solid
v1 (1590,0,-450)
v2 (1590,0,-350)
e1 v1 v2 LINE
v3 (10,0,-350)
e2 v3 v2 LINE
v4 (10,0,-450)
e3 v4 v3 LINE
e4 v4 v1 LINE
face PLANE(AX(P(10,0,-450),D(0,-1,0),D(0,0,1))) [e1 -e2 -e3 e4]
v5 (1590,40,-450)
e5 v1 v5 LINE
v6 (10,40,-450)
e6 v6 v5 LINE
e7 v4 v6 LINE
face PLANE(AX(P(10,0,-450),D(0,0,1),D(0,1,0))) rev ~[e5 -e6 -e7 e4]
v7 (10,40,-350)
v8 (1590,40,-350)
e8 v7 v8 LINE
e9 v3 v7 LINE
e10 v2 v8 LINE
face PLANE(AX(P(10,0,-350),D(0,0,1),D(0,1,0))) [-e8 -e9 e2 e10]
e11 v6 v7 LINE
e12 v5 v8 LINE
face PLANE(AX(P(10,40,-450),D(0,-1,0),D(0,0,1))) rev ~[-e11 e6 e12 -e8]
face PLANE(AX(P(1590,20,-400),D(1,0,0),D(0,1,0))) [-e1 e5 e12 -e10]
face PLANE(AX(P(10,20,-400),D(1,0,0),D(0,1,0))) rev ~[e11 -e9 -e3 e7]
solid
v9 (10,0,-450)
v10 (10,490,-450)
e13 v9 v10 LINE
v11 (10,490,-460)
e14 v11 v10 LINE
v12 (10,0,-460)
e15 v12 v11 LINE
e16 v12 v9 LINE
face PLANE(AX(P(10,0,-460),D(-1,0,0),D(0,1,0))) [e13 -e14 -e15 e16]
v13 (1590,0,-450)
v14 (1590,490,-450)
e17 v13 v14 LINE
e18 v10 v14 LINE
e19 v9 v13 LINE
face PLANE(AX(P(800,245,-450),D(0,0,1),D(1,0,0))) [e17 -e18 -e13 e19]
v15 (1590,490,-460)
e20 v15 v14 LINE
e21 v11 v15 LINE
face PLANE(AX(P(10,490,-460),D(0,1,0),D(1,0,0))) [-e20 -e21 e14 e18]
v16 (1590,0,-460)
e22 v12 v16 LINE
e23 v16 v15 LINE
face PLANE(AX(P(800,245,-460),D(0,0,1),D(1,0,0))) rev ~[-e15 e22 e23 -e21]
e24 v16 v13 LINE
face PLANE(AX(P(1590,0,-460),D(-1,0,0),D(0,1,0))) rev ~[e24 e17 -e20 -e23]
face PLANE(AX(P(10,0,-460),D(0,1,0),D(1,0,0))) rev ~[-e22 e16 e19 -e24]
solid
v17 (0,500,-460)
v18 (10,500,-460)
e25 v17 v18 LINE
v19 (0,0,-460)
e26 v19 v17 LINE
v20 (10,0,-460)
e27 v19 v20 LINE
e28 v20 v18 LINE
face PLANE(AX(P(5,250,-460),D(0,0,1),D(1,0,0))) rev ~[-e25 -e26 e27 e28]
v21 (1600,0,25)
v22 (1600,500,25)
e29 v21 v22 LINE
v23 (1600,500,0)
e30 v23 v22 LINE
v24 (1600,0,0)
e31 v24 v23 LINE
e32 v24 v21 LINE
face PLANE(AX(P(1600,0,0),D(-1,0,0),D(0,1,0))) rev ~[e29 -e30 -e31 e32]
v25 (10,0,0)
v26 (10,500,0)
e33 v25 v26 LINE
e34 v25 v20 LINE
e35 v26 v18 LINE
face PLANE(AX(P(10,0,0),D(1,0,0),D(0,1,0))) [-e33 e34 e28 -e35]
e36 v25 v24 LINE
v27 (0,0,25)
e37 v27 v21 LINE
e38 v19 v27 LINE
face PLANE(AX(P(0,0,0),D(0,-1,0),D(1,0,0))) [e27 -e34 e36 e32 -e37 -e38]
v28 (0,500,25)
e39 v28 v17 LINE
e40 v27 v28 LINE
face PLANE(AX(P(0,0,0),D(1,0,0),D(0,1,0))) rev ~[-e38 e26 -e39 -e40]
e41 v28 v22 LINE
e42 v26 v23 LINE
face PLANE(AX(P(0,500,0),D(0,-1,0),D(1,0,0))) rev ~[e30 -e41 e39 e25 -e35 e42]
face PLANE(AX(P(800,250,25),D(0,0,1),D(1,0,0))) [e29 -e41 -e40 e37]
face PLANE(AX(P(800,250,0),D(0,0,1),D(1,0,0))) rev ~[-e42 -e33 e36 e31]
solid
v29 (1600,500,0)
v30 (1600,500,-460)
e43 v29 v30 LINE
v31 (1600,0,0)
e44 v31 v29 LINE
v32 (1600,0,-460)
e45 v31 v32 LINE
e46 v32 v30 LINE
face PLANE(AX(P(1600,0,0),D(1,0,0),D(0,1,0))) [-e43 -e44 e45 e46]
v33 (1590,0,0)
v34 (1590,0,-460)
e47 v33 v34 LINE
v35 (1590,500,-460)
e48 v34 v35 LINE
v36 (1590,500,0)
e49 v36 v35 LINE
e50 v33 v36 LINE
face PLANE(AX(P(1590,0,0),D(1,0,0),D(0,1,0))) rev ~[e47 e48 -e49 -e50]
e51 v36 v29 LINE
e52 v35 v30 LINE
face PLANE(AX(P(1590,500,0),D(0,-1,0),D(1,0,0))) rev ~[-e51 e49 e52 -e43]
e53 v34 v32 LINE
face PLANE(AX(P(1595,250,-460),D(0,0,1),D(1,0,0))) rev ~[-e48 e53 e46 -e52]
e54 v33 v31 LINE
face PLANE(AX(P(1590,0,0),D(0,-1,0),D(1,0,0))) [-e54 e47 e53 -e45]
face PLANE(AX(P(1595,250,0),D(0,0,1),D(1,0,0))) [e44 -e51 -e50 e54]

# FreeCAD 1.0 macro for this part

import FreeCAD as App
import Part
import Sketcher

doc = App.newDocument("Part")
params = doc.addObject("Spreadsheet::Sheet", "Params")
for row, (alias, value) in enumerate([
    ("sketch1_width", "1600 mm"),
    ("sketch1_height", "500 mm"),
    ("pad1_length", "25 mm"),
    ("sketch2_width", "10 mm"),
    ("sketch2_height", "500 mm"),
    ("pad2_length", "460 mm"),
    ("sketch3_width", "1580 mm"),
    ("sketch3_height", "490 mm"),
    ("pad3_length", "10 mm"),
    ("sketch4_width", "10 mm"),
    ("sketch4_height", "500 mm"),
    ("pad4_length", "460 mm"),
    ("sketch5_width", "40 mm"),
    ("sketch5_height", "100 mm"),
    ("pad5_length", "1580 mm"),
], start=1):
    params.set(f"A{row}", alias)
    params.set(f"B{row}", "=" + value)
    params.setAlias(f"B{row}", alias)

body = doc.addObject("PartDesign::Body", "Body")

# Sketch on XY plane
sketch1 = body.newObject("Sketcher::SketchObject", "Sketch")
sketch1.AttachmentSupport = (doc.getObject("XY_Plane"), [""])
sketch1.MapMode = "FlatFace"
sketch1.addGeometry(Part.LineSegment(App.Vector(0, 500, 0), App.Vector(0, 0, 0)), False)
sketch1.addGeometry(Part.LineSegment(App.Vector(0, 0, 0), App.Vector(1600, 0, 0)), False)
sketch1.addGeometry(Part.LineSegment(App.Vector(1600, 0, 0), App.Vector(1600, 500, 0)), False)
sketch1.addGeometry(Part.LineSegment(App.Vector(1600, 500, 0), App.Vector(0, 500, 0)), False)
sketch1.addConstraint(Sketcher.Constraint("Coincident", 0, 2, 1, 1))
sketch1.addConstraint(Sketcher.Constraint("Coincident", 1, 2, 2, 1))
sketch1.addConstraint(Sketcher.Constraint("Coincident", 2, 2, 3, 1))
sketch1.addConstraint(Sketcher.Constraint("Coincident", 3, 2, 0, 1))
sketch1.addConstraint(Sketcher.Constraint("Vertical", 0))
sketch1.addConstraint(Sketcher.Constraint("Horizontal", 1))
sketch1.addConstraint(Sketcher.Constraint("Vertical", 2))
sketch1.addConstraint(Sketcher.Constraint("Horizontal", 3))
sketch1.addConstraint(Sketcher.Constraint("Coincident", 0, 2, -1, 1))
sketch1.addConstraint(Sketcher.Constraint("DistanceX", 1, 1, 1, 2, 1600.0))
sketch1.addConstraint(Sketcher.Constraint("DistanceY", 0, 2, 0, 1, 500.0))
sketch1.setExpression("Constraints[9]", "Params.sketch1_width")
sketch1.setExpression("Constraints[10]", "Params.sketch1_height")
pad1 = body.newObject("PartDesign::Pad", "Pad")
pad1.Profile = sketch1
pad1.setExpression("Length", "Params.pad1_length")

# Sketch on XY plane
sketch2 = body.newObject("Sketcher::SketchObject", "Sketch001")
sketch2.AttachmentSupport = (doc.getObject("XY_Plane"), [""])
sketch2.MapMode = "FlatFace"
sketch2.addGeometry(Part.LineSegment(App.Vector(0, 500, 0), App.Vector(0, 0, 0)), False)
sketch2.addGeometry(Part.LineSegment(App.Vector(0, 0, 0), App.Vector(10, 0, 0)), False)
sketch2.addGeometry(Part.LineSegment(App.Vector(10, 0, 0), App.Vector(10, 500, 0)), False)
sketch2.addGeometry(Part.LineSegment(App.Vector(10, 500, 0), App.Vector(0, 500, 0)), False)
sketch2.addConstraint(Sketcher.Constraint("Coincident", 0, 2, 1, 1))
sketch2.addConstraint(Sketcher.Constraint("Coincident", 1, 2, 2, 1))
sketch2.addConstraint(Sketcher.Constraint("Coincident", 2, 2, 3, 1))
sketch2.addConstraint(Sketcher.Constraint("Coincident", 3, 2, 0, 1))
sketch2.addConstraint(Sketcher.Constraint("Vertical", 0))
sketch2.addConstraint(Sketcher.Constraint("Horizontal", 1))
sketch2.addConstraint(Sketcher.Constraint("Vertical", 2))
sketch2.addConstraint(Sketcher.Constraint("Horizontal", 3))
sketch2.addConstraint(Sketcher.Constraint("Coincident", 0, 2, -1, 1))
sketch2.addConstraint(Sketcher.Constraint("DistanceX", 1, 1, 1, 2, 10.0))
sketch2.addConstraint(Sketcher.Constraint("DistanceY", 0, 2, 0, 1, 500.0))
sketch2.setExpression("Constraints[9]", "Params.sketch2_width")
sketch2.setExpression("Constraints[10]", "Params.sketch2_height")
pad2 = body.newObject("PartDesign::Pad", "Pad001")
pad2.Profile = sketch2
pad2.setExpression("Length", "Params.pad2_length")
pad2.Reversed = True
body2 = doc.addObject("PartDesign::Body", "Body001")

# Sketch on XY plane
sketch3 = body2.newObject("Sketcher::SketchObject", "Sketch002")
sketch3.AttachmentSupport = (doc.getObject("XY_Plane001"), [""])
sketch3.MapMode = "FlatFace"
sketch3.AttachmentOffset = App.Placement(App.Vector(0, 0, -460), App.Rotation())
sketch3.addGeometry(Part.LineSegment(App.Vector(10, 490, 0), App.Vector(10, 0, 0)), False)
sketch3.addGeometry(Part.LineSegment(App.Vector(10, 0, 0), App.Vector(1590, 0, 0)), False)
sketch3.addGeometry(Part.LineSegment(App.Vector(1590, 0, 0), App.Vector(1590, 490, 0)), False)
sketch3.addGeometry(Part.LineSegment(App.Vector(1590, 490, 0), App.Vector(10, 490, 0)), False)
sketch3.addConstraint(Sketcher.Constraint("Coincident", 0, 2, 1, 1))
sketch3.addConstraint(Sketcher.Constraint("Coincident", 1, 2, 2, 1))
sketch3.addConstraint(Sketcher.Constraint("Coincident", 2, 2, 3, 1))
sketch3.addConstraint(Sketcher.Constraint("Coincident", 3, 2, 0, 1))
sketch3.addConstraint(Sketcher.Constraint("Vertical", 0))
sketch3.addConstraint(Sketcher.Constraint("Horizontal", 1))
sketch3.addConstraint(Sketcher.Constraint("Vertical", 2))
sketch3.addConstraint(Sketcher.Constraint("Horizontal", 3))
sketch3.addConstraint(Sketcher.Constraint("PointOnObject", 0, 2, -1))
sketch3.addConstraint(Sketcher.Constraint("DistanceX", 1, 1, 1, 2, 1580.0))
sketch3.addConstraint(Sketcher.Constraint("DistanceY", 0, 2, 0, 1, 490.0))
sketch3.addConstraint(Sketcher.Constraint("DistanceX", -1, 1, 0, 2, 10.0))
sketch3.setExpression("Constraints[9]", "Params.sketch3_width")
sketch3.setExpression("Constraints[10]", "Params.sketch3_height")
pad3 = body2.newObject("PartDesign::Pad", "Pad002")
pad3.Profile = sketch3
pad3.setExpression("Length", "Params.pad3_length")
body3 = doc.addObject("PartDesign::Body", "Body002")

# Sketch on XY plane
sketch4 = body3.newObject("Sketcher::SketchObject", "Sketch003")
sketch4.AttachmentSupport = (doc.getObject("XY_Plane002"), [""])
sketch4.MapMode = "FlatFace"
sketch4.addGeometry(Part.LineSegment(App.Vector(1590, 500, 0), App.Vector(1590, 0, 0)), False)
sketch4.addGeometry(Part.LineSegment(App.Vector(1590, 0, 0), App.Vector(1600, 0, 0)), False)
sketch4.addGeometry(Part.LineSegment(App.Vector(1600, 0, 0), App.Vector(1600, 500, 0)), False)
sketch4.addGeometry(Part.LineSegment(App.Vector(1600, 500, 0), App.Vector(1590, 500, 0)), False)
sketch4.addConstraint(Sketcher.Constraint("Coincident", 0, 2, 1, 1))
sketch4.addConstraint(Sketcher.Constraint("Coincident", 1, 2, 2, 1))
sketch4.addConstraint(Sketcher.Constraint("Coincident", 2, 2, 3, 1))
sketch4.addConstraint(Sketcher.Constraint("Coincident", 3, 2, 0, 1))
sketch4.addConstraint(Sketcher.Constraint("Vertical", 0))
sketch4.addConstraint(Sketcher.Constraint("Horizontal", 1))
sketch4.addConstraint(Sketcher.Constraint("Vertical", 2))
sketch4.addConstraint(Sketcher.Constraint("Horizontal", 3))
sketch4.addConstraint(Sketcher.Constraint("PointOnObject", 0, 2, -1))
sketch4.addConstraint(Sketcher.Constraint("DistanceX", 1, 1, 1, 2, 10.0))
sketch4.addConstraint(Sketcher.Constraint("DistanceY", 0, 2, 0, 1, 500.0))
sketch4.addConstraint(Sketcher.Constraint("DistanceX", -1, 1, 0, 2, 1590.0))
sketch4.setExpression("Constraints[9]", "Params.sketch4_width")
sketch4.setExpression("Constraints[10]", "Params.sketch4_height")
pad4 = body3.newObject("PartDesign::Pad", "Pad003")
pad4.Profile = sketch4
pad4.setExpression("Length", "Params.pad4_length")
pad4.Reversed = True
body4 = doc.addObject("PartDesign::Body", "Body003")

# Sketch on YZ plane
sketch5 = body4.newObject("Sketcher::SketchObject", "Sketch004")
sketch5.AttachmentSupport = (doc.getObject("YZ_Plane003"), [""])
sketch5.MapMode = "FlatFace"
sketch5.AttachmentOffset = App.Placement(App.Vector(0, 0, 10), App.Rotation())
sketch5.addGeometry(Part.LineSegment(App.Vector(0, -350, 0), App.Vector(0, -450, 0)), False)
sketch5.addGeometry(Part.LineSegment(App.Vector(0, -450, 0), App.Vector(40, -450, 0)), False)
sketch5.addGeometry(Part.LineSegment(App.Vector(40, -450, 0), App.Vector(40, -350, 0)), False)
sketch5.addGeometry(Part.LineSegment(App.Vector(40, -350, 0), App.Vector(0, -350, 0)), False)
sketch5.addConstraint(Sketcher.Constraint("Coincident", 0, 2, 1, 1))
sketch5.addConstraint(Sketcher.Constraint("Coincident", 1, 2, 2, 1))
sketch5.addConstraint(Sketcher.Constraint("Coincident", 2, 2, 3, 1))
sketch5.addConstraint(Sketcher.Constraint("Coincident", 3, 2, 0, 1))
sketch5.addConstraint(Sketcher.Constraint("Vertical", 0))
sketch5.addConstraint(Sketcher.Constraint("Horizontal", 1))
sketch5.addConstraint(Sketcher.Constraint("Vertical", 2))
sketch5.addConstraint(Sketcher.Constraint("Horizontal", 3))
sketch5.addConstraint(Sketcher.Constraint("PointOnObject", 0, 2, -2))
sketch5.addConstraint(Sketcher.Constraint("DistanceX", 1, 1, 1, 2, 40.0))
sketch5.addConstraint(Sketcher.Constraint("DistanceY", 0, 2, 0, 1, 100.0))
sketch5.addConstraint(Sketcher.Constraint("DistanceY", 0, 2, -1, 1, 450.0))
sketch5.setExpression("Constraints[9]", "Params.sketch5_width")
sketch5.setExpression("Constraints[10]", "Params.sketch5_height")
pad5 = body4.newObject("PartDesign::Pad", "Pad004")
pad5.Profile = sketch5
pad5.setExpression("Length", "Params.pad5_length")

doc.recompute()
